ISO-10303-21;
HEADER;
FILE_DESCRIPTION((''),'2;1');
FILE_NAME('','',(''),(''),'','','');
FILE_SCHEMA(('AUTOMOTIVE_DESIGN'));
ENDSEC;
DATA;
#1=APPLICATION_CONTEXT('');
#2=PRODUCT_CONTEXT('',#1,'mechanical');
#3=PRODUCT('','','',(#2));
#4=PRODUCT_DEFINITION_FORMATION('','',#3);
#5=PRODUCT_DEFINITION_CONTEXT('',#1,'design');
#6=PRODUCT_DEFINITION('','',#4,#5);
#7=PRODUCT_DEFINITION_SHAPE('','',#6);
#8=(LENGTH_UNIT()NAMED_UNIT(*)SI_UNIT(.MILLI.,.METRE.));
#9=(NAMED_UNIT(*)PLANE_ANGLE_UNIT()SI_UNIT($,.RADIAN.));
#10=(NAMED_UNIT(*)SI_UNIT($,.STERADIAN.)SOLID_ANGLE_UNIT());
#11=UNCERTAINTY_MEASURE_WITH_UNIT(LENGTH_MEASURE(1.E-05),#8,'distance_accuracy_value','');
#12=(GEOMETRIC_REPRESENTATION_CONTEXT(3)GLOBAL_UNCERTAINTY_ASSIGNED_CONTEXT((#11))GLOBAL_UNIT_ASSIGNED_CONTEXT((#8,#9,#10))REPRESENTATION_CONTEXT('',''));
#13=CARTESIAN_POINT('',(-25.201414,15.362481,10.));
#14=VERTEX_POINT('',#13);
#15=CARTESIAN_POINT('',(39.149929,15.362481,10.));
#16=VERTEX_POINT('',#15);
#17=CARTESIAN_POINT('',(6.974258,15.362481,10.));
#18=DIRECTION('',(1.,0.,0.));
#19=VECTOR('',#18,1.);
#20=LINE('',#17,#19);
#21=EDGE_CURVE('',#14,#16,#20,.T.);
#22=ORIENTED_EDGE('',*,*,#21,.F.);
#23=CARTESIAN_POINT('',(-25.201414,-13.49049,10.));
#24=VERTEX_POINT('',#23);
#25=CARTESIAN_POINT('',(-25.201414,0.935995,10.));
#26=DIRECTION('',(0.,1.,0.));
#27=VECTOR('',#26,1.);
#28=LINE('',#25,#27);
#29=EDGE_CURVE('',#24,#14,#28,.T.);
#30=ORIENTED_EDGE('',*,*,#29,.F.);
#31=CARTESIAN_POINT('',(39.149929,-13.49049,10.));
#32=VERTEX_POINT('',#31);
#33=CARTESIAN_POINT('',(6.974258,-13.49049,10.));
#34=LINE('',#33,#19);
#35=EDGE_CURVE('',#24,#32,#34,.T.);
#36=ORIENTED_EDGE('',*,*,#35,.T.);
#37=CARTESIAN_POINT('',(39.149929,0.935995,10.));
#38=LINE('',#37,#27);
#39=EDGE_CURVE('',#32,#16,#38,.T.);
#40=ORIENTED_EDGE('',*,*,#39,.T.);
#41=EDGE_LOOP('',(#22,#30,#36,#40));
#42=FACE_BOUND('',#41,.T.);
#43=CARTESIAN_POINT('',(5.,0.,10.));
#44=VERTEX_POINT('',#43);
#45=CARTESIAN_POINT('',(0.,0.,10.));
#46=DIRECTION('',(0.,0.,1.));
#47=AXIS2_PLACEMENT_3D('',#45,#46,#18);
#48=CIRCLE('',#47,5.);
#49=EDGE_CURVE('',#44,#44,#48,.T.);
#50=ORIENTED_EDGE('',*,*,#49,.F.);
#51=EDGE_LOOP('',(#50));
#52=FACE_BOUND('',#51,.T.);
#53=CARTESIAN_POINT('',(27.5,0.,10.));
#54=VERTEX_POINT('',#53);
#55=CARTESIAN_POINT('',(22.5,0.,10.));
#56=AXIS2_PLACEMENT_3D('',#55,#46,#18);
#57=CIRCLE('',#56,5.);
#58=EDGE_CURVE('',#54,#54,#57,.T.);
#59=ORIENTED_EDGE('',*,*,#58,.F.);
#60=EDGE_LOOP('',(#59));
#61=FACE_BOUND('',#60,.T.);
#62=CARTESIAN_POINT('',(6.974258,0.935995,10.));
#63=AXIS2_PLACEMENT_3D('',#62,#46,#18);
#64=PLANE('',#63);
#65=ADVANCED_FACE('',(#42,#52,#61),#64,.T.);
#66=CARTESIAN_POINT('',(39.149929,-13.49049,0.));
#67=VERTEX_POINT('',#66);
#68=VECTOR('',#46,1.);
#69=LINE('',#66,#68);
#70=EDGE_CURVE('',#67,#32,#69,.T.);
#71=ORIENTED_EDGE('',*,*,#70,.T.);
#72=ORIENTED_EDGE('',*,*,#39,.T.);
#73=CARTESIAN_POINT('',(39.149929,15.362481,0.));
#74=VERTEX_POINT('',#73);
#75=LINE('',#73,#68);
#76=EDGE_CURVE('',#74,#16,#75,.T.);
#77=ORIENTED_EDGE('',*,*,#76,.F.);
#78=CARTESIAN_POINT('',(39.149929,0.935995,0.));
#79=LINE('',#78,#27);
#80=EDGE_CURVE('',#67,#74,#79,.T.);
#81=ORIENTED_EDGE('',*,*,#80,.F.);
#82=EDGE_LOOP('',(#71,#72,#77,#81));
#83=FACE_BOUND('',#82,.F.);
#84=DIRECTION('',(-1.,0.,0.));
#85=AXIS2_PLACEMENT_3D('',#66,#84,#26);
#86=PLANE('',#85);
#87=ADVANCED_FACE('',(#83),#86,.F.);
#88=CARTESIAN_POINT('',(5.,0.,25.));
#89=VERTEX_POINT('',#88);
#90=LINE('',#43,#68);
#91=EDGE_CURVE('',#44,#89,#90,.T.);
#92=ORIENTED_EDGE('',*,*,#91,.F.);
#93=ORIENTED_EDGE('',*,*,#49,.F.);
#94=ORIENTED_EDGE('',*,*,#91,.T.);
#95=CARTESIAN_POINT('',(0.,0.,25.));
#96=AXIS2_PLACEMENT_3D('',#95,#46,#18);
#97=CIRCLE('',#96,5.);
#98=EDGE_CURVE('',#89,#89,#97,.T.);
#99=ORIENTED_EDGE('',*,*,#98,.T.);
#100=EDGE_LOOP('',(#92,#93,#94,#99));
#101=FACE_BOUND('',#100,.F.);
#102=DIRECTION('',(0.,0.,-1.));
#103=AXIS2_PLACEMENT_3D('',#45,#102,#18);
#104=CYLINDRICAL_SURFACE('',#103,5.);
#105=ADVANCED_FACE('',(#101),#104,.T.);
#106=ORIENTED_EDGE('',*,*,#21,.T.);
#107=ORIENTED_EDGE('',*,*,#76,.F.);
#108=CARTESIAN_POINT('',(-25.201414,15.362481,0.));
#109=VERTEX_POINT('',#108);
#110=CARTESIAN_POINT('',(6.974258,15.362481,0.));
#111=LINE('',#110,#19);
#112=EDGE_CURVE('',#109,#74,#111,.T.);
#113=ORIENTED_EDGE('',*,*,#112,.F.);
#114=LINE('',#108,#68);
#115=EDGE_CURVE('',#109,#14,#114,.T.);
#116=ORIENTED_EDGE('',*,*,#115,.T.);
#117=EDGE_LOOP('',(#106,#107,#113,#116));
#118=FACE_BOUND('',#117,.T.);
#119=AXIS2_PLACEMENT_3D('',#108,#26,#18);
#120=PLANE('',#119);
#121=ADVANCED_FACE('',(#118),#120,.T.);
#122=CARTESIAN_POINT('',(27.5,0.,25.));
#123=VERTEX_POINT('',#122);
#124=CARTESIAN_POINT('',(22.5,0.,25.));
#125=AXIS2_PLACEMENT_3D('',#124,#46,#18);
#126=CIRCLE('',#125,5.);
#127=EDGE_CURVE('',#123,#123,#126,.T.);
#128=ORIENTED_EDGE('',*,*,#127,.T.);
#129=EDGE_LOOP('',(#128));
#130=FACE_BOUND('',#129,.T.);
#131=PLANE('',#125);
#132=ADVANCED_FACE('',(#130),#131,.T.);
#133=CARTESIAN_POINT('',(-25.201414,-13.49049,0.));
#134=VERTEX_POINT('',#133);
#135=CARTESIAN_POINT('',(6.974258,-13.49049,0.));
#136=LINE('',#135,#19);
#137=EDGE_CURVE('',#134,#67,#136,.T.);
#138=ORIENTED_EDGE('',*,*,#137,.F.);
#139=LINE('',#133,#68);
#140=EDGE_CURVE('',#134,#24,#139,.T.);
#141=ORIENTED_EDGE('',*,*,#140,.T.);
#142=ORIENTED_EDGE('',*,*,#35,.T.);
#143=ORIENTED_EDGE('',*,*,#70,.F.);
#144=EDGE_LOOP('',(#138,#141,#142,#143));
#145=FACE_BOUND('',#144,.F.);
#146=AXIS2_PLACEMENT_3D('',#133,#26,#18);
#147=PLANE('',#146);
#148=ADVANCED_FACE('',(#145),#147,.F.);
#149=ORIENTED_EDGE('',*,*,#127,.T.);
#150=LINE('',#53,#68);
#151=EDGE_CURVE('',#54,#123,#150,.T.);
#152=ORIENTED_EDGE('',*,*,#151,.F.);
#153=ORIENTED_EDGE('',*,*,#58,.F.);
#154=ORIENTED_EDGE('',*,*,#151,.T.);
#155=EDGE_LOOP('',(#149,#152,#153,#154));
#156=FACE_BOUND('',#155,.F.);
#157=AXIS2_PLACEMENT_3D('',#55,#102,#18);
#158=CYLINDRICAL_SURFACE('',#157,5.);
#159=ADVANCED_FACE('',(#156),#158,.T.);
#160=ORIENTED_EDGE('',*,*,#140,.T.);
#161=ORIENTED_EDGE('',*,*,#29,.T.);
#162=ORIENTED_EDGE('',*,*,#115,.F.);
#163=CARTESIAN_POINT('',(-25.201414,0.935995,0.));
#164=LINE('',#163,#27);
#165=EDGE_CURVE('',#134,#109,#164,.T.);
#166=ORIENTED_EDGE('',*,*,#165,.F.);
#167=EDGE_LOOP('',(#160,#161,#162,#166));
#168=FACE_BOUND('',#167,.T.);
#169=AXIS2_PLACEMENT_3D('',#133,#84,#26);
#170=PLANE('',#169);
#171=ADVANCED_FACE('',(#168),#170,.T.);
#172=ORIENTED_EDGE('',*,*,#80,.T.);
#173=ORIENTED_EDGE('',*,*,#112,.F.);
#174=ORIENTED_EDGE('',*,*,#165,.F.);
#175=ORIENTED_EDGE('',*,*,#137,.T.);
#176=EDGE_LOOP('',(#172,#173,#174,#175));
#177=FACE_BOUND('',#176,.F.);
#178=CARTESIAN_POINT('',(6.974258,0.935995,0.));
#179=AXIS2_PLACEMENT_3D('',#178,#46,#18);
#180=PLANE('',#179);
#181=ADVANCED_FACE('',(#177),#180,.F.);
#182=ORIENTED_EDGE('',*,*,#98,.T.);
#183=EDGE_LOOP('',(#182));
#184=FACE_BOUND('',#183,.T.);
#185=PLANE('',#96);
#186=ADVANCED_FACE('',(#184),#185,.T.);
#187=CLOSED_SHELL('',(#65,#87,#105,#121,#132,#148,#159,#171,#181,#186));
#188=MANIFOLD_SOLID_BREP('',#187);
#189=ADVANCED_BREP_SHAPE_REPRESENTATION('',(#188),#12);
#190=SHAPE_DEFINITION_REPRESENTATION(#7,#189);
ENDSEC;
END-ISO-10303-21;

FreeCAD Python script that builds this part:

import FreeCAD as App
import Part
import Sketcher
from FreeCAD import Vector

doc = App.newDocument("Part")
params = doc.addObject("Spreadsheet::Sheet", "Params")
for row, (alias, value) in enumerate([
    ("pad1_length", "10 mm"),
    ("sketch2_diameter", "10 mm"),
    ("pad2_length", "15 mm"),
], start=1):
    params.set(f"A{row}", alias)
    params.set(f"B{row}", "=" + value)
    params.setAlias(f"B{row}", alias)

body = doc.addObject("PartDesign::Body", "Body")

# Sketch on XY plane
sketch1 = body.newObject("Sketcher::SketchObject", "Sketch")
sketch1.AttachmentSupport = (doc.getObject("XY_Plane"), [""])
sketch1.MapMode = "FlatFace"
sketch1.addGeometry(Part.LineSegment(Vector(-25, 15, 0), Vector(-25, -13, 0)), False)
sketch1.addGeometry(Part.LineSegment(Vector(-25, -13, 0), Vector(39, -13, 0)), False)
sketch1.addGeometry(Part.LineSegment(Vector(39, -13, 0), Vector(39, 15, 0)), False)
sketch1.addGeometry(Part.LineSegment(Vector(39, 15, 0), Vector(-25, 15, 0)), False)
sketch1.addConstraint(Sketcher.Constraint("Coincident", 0, 2, 1, 1))
sketch1.addConstraint(Sketcher.Constraint("Coincident", 1, 2, 2, 1))
sketch1.addConstraint(Sketcher.Constraint("Coincident", 2, 2, 3, 1))
sketch1.addConstraint(Sketcher.Constraint("Coincident", 3, 2, 0, 1))
sketch1.addConstraint(Sketcher.Constraint("Vertical", 0))
sketch1.addConstraint(Sketcher.Constraint("Horizontal", 1))
sketch1.addConstraint(Sketcher.Constraint("Vertical", 2))
sketch1.addConstraint(Sketcher.Constraint("Horizontal", 3))
sketch1.addConstraint(Sketcher.Constraint("DistanceY", 0, 2, 0, 1, 28.852971))
sketch1.addConstraint(Sketcher.Constraint("DistanceX", 1, 1, 1, 2, 64.351343))
sketch1.addConstraint(Sketcher.Constraint("DistanceY", 0, 2, -1, 1, 13.49049))
sketch1.addConstraint(Sketcher.Constraint("DistanceX", -1, 1, 1, 2, 39.149929))
pad1 = body.newObject("PartDesign::Pad", "Pad")
pad1.Profile = sketch1
pad1.setExpression("Length", "Params.pad1_length")

# Sketch on XY plane
sketch2 = body.newObject("Sketcher::SketchObject", "Sketch001")
sketch2.AttachmentSupport = (doc.getObject("XY_Plane"), [""])
sketch2.MapMode = "FlatFace"
sketch2.AttachmentOffset = App.Placement(Vector(0, 0, 10), App.Rotation())
sketch2.addGeometry(Part.Circle(Vector(0, 0, 0), Vector(0, 0, 1), 5), False)
sketch2.addGeometry(Part.Circle(Vector(22, 0, 0), Vector(0, 0, 1), 5), False)
sketch2.addConstraint(Sketcher.Constraint("Coincident", 0, 3, -1, 1))
sketch2.addConstraint(Sketcher.Constraint("Equal", 0, 1))
sketch2.addConstraint(Sketcher.Constraint("PointOnObject", 1, 3, -1))
sketch2.addConstraint(Sketcher.Constraint("Diameter", 0, 10.0))
sketch2.addConstraint(Sketcher.Constraint("DistanceX", -1, 1, 1, 3, 22.5))
sketch2.setExpression("Constraints[3]", "Params.sketch2_diameter")
pad2 = body.newObject("PartDesign::Pad", "Pad001")
pad2.Profile = sketch2
pad2.setExpression("Length", "Params.pad2_length")

doc.recompute()
